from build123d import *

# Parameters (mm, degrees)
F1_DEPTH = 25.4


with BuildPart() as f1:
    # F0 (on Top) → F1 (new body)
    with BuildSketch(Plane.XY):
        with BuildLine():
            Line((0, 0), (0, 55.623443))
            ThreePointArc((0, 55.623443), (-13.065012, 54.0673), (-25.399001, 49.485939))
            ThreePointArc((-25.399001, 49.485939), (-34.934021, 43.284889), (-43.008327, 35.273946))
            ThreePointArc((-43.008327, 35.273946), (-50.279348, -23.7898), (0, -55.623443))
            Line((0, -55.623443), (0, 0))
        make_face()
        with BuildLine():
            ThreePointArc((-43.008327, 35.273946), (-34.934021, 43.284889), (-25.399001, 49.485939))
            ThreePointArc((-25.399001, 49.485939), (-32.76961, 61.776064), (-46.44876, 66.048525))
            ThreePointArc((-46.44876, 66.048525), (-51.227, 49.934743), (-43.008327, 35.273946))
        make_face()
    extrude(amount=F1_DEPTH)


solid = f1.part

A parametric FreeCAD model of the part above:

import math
import FreeCAD as App
import Part
import Sketcher

V = App.Vector
Q = App.Units.Quantity

doc = App.newDocument("Part")
body = doc.addObject("PartDesign::Body", "Body")

# Sketch on XY plane
sketch1 = body.newObject("Sketcher::SketchObject", "Sketch")
sketch1.AttachmentSupport = (doc.getObject("XY_Plane"), [""])
sketch1.MapMode = "FlatFace"
sketch1.addGeometry([
    Part.ArcOfCircle(Part.Circle(V(-0.000004, 0.000018, 0), V(0, 0, 1), 55.623425), math.radians(89.999996), math.radians(117.169481)),  # 0
    Part.ArcOfCircle(Part.Circle(V(-45.217693, 45.955519, 0), V(0, 0, 1), 20.130684), math.radians(10.100486), math.radians(93.50604)),  # 1
    Part.ArcOfCircle(Part.Circle(V(-29.760471, 52.334586, 0), V(0, 0, 1), 21.600258), math.radians(140.587653), math.radians(232.170096)),  # 2
    Part.ArcOfCircle(Part.Circle(V(0, 0, 0), V(0, 0, 1), 55.623443), math.radians(140.642578), math.radians(270)),  # 3
    Part.LineSegment(V(0, -55.623443, 0), V(0, 55.623443, 0)),  # 4
], False)
sketch1.addConstraint([
    Sketcher.Constraint("Coincident", 0, 2, 1, 1),
    Sketcher.Constraint("Coincident", 1, 2, 2, 1),
    Sketcher.Constraint("Coincident", 2, 2, 3, 1),
    Sketcher.Constraint("Coincident", 3, 2, 4, 1),
    Sketcher.Constraint("Coincident", 4, 2, 0, 1),
    Sketcher.Constraint("Vertical", 4),
    Sketcher.Constraint("Coincident", 3, 3, -1, 1),
    Sketcher.Constraint("Symmetric", 3, 2, 4, 2, -1, 1),
    Sketcher.Constraint("Radius", 0, 55.623425),
    Sketcher.Constraint("Radius", 1, 20.130684),
    Sketcher.Constraint("Radius", 2, 21.600258),
    Sketcher.Constraint("Radius", 3, 55.623443),
    Sketcher.Constraint("DistanceX", 0, 2, -1, 1, 25.399001),
    Sketcher.Constraint("DistanceY", 0, 3, 1, 3, 45.955501),
    Sketcher.Constraint("DistanceX", 2, 3, -1, 1, 29.760471),
    Sketcher.Constraint("DistanceY", -1, 1, 0, 2, 49.485939),
    Sketcher.Constraint("DistanceX", 1, 2, -1, 1, 46.44876),
])
pad1 = body.newObject("PartDesign::Pad", "Pad")
pad1.Profile = sketch1
pad1.Length = Q("1 in")

doc.recompute()
